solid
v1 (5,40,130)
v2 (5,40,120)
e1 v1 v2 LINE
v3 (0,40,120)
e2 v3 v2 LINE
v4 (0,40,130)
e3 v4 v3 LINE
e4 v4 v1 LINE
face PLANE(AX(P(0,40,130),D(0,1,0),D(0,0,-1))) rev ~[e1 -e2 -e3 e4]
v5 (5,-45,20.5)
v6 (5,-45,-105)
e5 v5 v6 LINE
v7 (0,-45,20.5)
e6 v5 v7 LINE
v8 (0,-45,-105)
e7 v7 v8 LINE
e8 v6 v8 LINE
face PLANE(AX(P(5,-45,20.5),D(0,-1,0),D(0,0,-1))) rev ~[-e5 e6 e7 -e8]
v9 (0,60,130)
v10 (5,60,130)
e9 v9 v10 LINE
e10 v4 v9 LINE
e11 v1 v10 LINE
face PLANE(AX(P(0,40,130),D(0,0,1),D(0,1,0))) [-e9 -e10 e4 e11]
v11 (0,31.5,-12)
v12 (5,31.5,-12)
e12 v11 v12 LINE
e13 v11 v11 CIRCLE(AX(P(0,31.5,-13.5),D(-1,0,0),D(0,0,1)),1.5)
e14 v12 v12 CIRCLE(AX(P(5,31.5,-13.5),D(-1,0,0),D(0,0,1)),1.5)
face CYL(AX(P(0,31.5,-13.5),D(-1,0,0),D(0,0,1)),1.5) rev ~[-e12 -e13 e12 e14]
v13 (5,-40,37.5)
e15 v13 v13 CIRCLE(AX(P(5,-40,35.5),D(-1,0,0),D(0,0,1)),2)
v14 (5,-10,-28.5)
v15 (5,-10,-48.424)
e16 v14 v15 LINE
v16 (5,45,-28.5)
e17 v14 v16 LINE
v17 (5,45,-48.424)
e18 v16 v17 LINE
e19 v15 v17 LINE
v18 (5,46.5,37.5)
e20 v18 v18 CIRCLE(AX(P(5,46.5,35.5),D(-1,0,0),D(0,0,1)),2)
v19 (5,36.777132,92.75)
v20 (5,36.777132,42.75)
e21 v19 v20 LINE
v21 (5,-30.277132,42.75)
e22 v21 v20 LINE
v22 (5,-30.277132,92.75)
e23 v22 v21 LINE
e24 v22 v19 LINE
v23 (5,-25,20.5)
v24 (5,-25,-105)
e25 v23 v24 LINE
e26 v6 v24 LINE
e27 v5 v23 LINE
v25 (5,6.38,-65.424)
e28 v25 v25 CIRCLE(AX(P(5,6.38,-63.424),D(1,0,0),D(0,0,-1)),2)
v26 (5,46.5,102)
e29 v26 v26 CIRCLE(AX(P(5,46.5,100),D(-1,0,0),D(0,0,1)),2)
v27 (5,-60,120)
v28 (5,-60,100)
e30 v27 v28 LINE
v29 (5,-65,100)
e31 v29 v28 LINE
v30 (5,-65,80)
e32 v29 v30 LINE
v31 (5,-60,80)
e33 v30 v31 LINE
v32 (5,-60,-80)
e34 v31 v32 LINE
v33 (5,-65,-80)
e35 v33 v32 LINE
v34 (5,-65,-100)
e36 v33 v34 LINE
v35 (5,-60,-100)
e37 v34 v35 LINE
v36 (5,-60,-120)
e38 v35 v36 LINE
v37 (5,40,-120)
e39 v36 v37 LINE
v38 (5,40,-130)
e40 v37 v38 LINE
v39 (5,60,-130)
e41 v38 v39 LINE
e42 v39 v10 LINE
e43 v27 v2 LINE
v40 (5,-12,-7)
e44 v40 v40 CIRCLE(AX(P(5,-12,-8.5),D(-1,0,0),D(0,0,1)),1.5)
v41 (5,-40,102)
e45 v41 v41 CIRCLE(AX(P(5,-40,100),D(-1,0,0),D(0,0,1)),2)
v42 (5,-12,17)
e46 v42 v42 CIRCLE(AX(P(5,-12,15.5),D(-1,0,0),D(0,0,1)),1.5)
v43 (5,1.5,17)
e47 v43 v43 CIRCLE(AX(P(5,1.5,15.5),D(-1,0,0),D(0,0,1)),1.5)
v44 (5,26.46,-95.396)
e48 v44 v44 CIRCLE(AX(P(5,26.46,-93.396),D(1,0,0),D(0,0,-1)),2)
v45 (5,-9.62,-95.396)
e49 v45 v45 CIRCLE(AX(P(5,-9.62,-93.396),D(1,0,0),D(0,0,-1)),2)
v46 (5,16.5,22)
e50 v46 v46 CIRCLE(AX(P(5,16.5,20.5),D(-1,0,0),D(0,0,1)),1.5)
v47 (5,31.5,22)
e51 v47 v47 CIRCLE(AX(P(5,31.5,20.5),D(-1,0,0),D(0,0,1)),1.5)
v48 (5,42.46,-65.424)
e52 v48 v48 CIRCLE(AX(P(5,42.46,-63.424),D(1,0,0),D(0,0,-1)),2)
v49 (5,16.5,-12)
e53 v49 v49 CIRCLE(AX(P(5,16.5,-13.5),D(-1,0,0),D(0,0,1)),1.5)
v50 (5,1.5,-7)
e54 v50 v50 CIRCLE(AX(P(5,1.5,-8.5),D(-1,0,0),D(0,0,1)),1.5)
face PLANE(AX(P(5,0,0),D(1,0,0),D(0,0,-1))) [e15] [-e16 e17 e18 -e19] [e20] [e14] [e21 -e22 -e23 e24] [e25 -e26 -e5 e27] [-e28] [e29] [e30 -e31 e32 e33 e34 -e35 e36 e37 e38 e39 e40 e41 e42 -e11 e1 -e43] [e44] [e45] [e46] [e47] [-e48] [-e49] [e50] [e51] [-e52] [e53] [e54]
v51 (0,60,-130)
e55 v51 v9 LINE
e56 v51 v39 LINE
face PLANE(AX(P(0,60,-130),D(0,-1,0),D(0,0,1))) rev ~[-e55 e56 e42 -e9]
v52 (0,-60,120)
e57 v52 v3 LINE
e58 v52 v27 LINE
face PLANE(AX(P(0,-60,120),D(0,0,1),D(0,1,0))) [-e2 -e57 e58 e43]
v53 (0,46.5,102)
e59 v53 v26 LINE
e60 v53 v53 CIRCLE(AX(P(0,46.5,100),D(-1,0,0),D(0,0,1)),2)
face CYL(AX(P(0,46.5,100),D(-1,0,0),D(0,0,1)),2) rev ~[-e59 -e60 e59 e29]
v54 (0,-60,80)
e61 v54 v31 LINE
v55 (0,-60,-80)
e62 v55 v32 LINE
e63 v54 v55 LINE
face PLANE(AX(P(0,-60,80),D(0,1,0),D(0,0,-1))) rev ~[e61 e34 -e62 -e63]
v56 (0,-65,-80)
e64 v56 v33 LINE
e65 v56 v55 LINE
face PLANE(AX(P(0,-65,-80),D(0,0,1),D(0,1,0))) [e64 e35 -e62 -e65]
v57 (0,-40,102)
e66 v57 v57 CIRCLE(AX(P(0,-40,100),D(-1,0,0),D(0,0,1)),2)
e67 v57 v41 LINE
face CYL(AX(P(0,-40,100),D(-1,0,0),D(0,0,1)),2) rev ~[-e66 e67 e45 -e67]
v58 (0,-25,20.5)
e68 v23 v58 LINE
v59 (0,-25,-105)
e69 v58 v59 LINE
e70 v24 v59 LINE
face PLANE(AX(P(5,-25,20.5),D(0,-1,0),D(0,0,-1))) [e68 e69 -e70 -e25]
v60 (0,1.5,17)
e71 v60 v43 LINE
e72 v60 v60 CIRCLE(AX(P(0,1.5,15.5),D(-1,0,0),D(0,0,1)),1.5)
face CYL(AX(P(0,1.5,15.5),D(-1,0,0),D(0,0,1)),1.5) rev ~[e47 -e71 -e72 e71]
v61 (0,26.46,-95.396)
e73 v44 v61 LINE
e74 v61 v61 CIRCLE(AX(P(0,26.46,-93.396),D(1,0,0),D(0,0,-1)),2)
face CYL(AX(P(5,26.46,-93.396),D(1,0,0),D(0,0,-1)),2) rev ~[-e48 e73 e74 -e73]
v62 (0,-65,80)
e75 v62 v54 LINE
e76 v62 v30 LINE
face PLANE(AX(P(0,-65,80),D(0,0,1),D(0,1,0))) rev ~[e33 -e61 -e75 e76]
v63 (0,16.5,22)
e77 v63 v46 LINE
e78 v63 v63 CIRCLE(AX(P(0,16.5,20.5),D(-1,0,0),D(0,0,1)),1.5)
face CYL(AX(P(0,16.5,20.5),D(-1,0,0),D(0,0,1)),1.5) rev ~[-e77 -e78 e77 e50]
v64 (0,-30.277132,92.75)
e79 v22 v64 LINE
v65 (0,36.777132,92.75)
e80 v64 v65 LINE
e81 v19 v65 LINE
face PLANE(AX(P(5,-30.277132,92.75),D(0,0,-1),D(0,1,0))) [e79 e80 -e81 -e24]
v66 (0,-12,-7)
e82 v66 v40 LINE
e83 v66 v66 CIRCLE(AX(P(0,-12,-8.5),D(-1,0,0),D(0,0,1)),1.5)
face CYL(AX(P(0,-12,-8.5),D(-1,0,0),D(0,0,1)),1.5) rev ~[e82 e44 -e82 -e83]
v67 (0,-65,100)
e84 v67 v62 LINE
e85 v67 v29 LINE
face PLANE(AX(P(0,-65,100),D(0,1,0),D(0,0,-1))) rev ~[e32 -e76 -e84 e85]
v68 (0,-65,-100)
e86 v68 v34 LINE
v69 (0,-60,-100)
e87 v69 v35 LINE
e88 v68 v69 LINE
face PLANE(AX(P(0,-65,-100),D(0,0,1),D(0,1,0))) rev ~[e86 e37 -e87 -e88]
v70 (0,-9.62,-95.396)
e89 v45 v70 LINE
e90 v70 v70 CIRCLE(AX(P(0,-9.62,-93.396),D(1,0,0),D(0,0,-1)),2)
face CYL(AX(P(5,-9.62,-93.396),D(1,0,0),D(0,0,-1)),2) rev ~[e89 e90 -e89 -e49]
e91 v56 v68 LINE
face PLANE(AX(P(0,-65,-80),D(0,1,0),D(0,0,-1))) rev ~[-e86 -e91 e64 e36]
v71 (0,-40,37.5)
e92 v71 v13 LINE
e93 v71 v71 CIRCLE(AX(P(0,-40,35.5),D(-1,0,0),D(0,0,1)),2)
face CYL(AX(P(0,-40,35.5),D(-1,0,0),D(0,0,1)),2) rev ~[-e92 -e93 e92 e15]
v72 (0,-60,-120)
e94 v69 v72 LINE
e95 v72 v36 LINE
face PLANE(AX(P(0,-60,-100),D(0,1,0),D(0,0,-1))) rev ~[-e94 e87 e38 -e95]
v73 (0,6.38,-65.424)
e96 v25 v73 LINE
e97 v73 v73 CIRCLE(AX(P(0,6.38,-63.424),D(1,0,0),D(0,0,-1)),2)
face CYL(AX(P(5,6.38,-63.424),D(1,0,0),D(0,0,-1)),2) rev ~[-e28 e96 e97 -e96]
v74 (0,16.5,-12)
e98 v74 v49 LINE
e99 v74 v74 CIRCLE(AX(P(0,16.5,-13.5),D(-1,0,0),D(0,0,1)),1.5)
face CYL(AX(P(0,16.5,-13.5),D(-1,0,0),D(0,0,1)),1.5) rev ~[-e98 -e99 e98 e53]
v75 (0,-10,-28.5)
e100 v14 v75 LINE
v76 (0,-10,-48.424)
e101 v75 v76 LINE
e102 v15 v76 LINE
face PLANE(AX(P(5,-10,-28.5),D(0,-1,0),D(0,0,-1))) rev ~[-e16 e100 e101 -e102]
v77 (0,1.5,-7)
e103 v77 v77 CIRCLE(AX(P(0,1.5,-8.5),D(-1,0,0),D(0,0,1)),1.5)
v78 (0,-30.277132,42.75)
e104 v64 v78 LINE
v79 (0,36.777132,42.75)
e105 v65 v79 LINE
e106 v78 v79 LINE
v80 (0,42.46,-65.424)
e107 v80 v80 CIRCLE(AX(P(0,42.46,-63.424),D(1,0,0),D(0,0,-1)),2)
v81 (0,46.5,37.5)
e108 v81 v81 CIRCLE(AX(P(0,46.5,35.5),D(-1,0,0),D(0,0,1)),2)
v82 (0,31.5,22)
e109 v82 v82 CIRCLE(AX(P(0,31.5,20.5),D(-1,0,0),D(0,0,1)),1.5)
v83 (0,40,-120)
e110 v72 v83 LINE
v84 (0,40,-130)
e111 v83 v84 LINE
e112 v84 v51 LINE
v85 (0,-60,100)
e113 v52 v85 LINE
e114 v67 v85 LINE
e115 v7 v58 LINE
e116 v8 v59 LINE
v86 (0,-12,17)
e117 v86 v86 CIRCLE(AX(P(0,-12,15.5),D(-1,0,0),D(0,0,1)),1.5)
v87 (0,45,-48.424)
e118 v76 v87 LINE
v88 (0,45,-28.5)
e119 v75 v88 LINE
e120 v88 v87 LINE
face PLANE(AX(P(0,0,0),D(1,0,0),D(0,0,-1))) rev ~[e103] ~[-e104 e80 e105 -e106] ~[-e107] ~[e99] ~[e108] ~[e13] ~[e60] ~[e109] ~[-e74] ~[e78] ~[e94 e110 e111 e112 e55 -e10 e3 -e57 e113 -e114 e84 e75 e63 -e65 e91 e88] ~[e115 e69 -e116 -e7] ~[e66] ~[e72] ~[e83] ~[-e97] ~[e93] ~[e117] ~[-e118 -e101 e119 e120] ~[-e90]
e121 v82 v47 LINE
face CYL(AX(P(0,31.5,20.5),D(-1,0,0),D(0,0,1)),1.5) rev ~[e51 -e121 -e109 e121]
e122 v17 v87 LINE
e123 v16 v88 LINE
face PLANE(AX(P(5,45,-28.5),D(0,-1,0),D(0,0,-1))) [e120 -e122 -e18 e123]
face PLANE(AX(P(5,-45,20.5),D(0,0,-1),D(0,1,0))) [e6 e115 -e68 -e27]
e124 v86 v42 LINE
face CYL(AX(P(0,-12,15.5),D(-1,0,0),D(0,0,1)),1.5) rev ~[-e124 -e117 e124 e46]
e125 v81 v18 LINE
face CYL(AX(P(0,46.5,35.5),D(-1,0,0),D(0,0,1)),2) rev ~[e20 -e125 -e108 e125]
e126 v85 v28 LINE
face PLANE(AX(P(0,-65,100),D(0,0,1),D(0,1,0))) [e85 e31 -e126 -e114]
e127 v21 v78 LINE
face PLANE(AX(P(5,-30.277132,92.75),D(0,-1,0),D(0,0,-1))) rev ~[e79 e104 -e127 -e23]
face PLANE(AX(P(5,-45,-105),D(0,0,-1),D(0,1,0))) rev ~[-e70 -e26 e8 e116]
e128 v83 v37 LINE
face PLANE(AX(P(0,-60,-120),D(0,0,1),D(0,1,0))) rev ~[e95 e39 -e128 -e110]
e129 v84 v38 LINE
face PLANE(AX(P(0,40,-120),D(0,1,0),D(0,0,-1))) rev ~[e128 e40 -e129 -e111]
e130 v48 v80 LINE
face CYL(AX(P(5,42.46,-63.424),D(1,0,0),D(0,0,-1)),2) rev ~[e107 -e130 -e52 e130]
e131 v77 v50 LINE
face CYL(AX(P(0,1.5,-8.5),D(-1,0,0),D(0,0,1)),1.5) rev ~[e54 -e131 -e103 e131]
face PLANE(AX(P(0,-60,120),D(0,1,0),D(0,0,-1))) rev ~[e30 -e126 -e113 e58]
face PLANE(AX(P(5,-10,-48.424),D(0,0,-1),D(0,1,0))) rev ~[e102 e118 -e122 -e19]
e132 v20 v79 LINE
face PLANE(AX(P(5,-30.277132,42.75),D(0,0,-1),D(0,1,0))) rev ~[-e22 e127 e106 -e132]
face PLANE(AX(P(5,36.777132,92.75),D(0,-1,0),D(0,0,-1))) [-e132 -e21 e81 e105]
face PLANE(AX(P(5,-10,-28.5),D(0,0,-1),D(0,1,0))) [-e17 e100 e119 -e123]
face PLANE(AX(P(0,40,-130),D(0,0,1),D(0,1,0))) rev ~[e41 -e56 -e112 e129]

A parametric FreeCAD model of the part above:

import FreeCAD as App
import Part
import Sketcher

V = App.Vector
Q = App.Units.Quantity


def add_polygon(sketch, points):
    """Adds a closed chain of lines whose ends are joined by coincident constraints."""
    first, n = sketch.GeometryCount, len(points)
    for a, b in zip(points, points[1:] + points[:1]):
        sketch.addGeometry(Part.LineSegment(App.Vector(*a, 0), App.Vector(*b, 0)), False)
    for i in range(n):
        sketch.addConstraint(Sketcher.Constraint("Coincident", first + i, 2, first + (i + 1) % n, 1))

doc = App.newDocument("Part")
body = doc.addObject("PartDesign::Body", "Body")

# Sketch on YZ plane
sketch1 = doc.addObject("Sketcher::SketchObject", "Sketch")
body.addObject(sketch1)
sketch1.AttachmentSupport = (doc.YZ_Plane, [""])
sketch1.MapMode = "FlatFace"
add_polygon(sketch1, [(40, 120), (-60, 120), (-60, 100), (-65, 100), (-65, 80), (-60, 80), (-60, -80), (-65, -80), (-65, -100), (-60, -100), (-60, -120), (40, -120), (40, -130), (60, -130), (60, 130), (40, 130)])  # lines 0-15
sketch1.addConstraint([
    Sketcher.Constraint("Horizontal", 0),
    Sketcher.Constraint("Vertical", 1),
    Sketcher.Constraint("Horizontal", 2),
    Sketcher.Constraint("Vertical", 3),
    Sketcher.Constraint("Horizontal", 4),
    Sketcher.Constraint("Vertical", 5),
    Sketcher.Constraint("Horizontal", 6),
    Sketcher.Constraint("Vertical", 7),
    Sketcher.Constraint("Horizontal", 8),
    Sketcher.Constraint("Vertical", 9),
    Sketcher.Constraint("Horizontal", 10),
    Sketcher.Constraint("Vertical", 11),
    Sketcher.Constraint("Horizontal", 12),
    Sketcher.Constraint("Vertical", 13),
    Sketcher.Constraint("Horizontal", 14),
    Sketcher.Constraint("Vertical", 15),
    Sketcher.Constraint("Symmetric", 3, 2, 6, 2, -1),
    Sketcher.Constraint("Symmetric", 1, 2, 8, 2, -1),
    Sketcher.Constraint("Symmetric", 11, 2, 14, 2, -1),
    Sketcher.Constraint("Vertical", 1, 2, 4, 2),
    Sketcher.Constraint("Equal", 14, 1),
    Sketcher.Constraint("Equal", 1, 3),
    Sketcher.Constraint("Equal", 7, 9),
    Sketcher.Constraint("DistanceX", 0, 2, 0, 1, Q("100 mm")),
    Sketcher.Constraint("DistanceX", 2, 2, 2, 1, Q("5 mm")),
    Sketcher.Constraint("DistanceX", 12, 1, 12, 2, Q("20 mm")),
    Sketcher.Constraint("DistanceY", 5, 2, 5, 1, Q("160 mm")),
    Sketcher.Constraint("DistanceY", 11, 2, 11, 1, Q("10 mm")),
    Sketcher.Constraint("DistanceX", 0, 2, -1, 1, Q("60 mm")),
])
pad1 = doc.addObject("PartDesign::Pad", "Pad")
body.addObject(pad1)
pad1.Profile = sketch1
pad1.Length = 5

# Sketch on YZ plane
sketch2 = doc.addObject("Sketcher::SketchObject", "Sketch001")
body.addObject(sketch2)
sketch2.AttachmentSupport = (doc.YZ_Plane, [""])
sketch2.MapMode = "FlatFace"
sketch2.addGeometry([
    Part.Circle(V(46.5, 35.5, 0), V(0, 0, 1), 2),  # 0
    Part.Circle(V(46.5, 100, 0), V(0, 0, 1), 2),  # 1
    Part.Circle(V(-40, 100, 0), V(0, 0, 1), 2),  # 2
    Part.Circle(V(-40, 35.5, 0), V(0, 0, 1), 2),  # 3
    Part.Circle(V(31.5, 20.5, 0), V(0, 0, 1), 1.5),  # 4
    Part.Circle(V(31.5, -13.5, 0), V(0, 0, 1), 1.5),  # 5
    Part.Circle(V(16.5, -13.5, 0), V(0, 0, 1), 1.5),  # 6
    Part.Circle(V(16.5, 20.5, 0), V(0, 0, 1), 1.5),  # 7
    Part.Circle(V(1.5, 15.5, 0), V(0, 0, 1), 1.5),  # 8
    Part.Circle(V(-12, 15.5, 0), V(0, 0, 1), 1.5),  # 9
    Part.Circle(V(1.5, -8.5, 0), V(0, 0, 1), 1.5),  # 10
    Part.Circle(V(-12, -8.5, 0), V(0, 0, 1), 1.5),  # 11
], False)
sketch2.addConstraint([
    Sketcher.Constraint("Equal", 0, 1),
    Sketcher.Constraint("Equal", 1, 2),
    Sketcher.Constraint("Equal", 2, 3),
    Sketcher.Constraint("Equal", 4, 5),
    Sketcher.Constraint("Equal", 5, 6),
    Sketcher.Constraint("Equal", 6, 7),
    Sketcher.Constraint("Equal", 7, 8),
    Sketcher.Constraint("Equal", 8, 9),
    Sketcher.Constraint("Equal", 9, 10),
    Sketcher.Constraint("Equal", 10, 11),
    Sketcher.Constraint("Horizontal", 1, 3, 2, 3),
    Sketcher.Constraint("Horizontal", 0, 3, 3, 3),
    Sketcher.Constraint("Horizontal", 5, 3, 6, 3),
    Sketcher.Constraint("Horizontal", 4, 3, 7, 3),
    Sketcher.Constraint("Horizontal", 8, 3, 9, 3),
    Sketcher.Constraint("Horizontal", 10, 3, 11, 3),
    Sketcher.Constraint("Vertical", 0, 3, 1, 3),
    Sketcher.Constraint("Vertical", 2, 3, 3, 3),
    Sketcher.Constraint("Vertical", 4, 3, 5, 3),
    Sketcher.Constraint("Vertical", 6, 3, 7, 3),
    Sketcher.Constraint("Vertical", 8, 3, 10, 3),
    Sketcher.Constraint("Vertical", 9, 3, 11, 3),
    Sketcher.Constraint("Diameter", 0, Q("4 mm")),
    Sketcher.Constraint("Diameter", 4, Q("3 mm")),
    Sketcher.Constraint("DistanceY", -1, 1, 1, 3, Q("100 mm")),
    Sketcher.Constraint("DistanceX", 2, 3, -1, 1, Q("40 mm")),
    Sketcher.Constraint("DistanceX", 9, 3, -1, 1, Q("12 mm")),
    Sketcher.Constraint("DistanceX", 4, 3, 0, 3, Q("15 mm")),
    Sketcher.Constraint("DistanceY", 4, 3, 0, 3, Q("15 mm")),
    Sketcher.Constraint("DistanceY", 5, 3, 4, 3, Q("34 mm")),
    Sketcher.Constraint("DistanceX", 6, 3, 5, 3, Q("15 mm")),
    Sketcher.Constraint("DistanceX", 8, 3, 7, 3, Q("15 mm")),
    Sketcher.Constraint("DistanceY", 8, 3, 7, 3, Q("5 mm")),
    Sketcher.Constraint("DistanceY", 6, 3, 10, 3, Q("5 mm")),
    Sketcher.Constraint("DistanceX", -1, 1, 0, 3, Q("46.5 mm")),
    Sketcher.Constraint("DistanceY", -1, 1, 0, 3, Q("35.5 mm")),
])
pocket1 = doc.addObject("PartDesign::Pocket", "Pocket")
body.addObject(pocket1)
pocket1.Profile = sketch2
pocket1.Type = "ThroughAll"
pocket1.Reversed = True

# Sketch on YZ plane
sketch3 = doc.addObject("Sketcher::SketchObject", "Sketch002")
body.addObject(sketch3)
sketch3.AttachmentSupport = (doc.YZ_Plane, [""])
sketch3.MapMode = "FlatFace"
sketch3.AttachmentOffset = App.Placement(V(0, 0, 5), App.Rotation())
sketch3.addGeometry([
    Part.Circle(V(42.5, -63.4, 0), V(0, 0, 1), 2),
    Part.Circle(V(26.5, -93.4, 0), V(0, 0, 1), 2),
    Part.Circle(V(6.4, -63.4, 0), V(0, 0, 1), 2),
    Part.Circle(V(-9.6, -93.4, 0), V(0, 0, 1), 2),
], False)
sketch3.addConstraint([
    Sketcher.Constraint("Equal", 0, 1),
    Sketcher.Constraint("Equal", 1, 2),
    Sketcher.Constraint("Equal", 2, 3),
    Sketcher.Constraint("Horizontal", 0, 3, 2, 3),
    Sketcher.Constraint("Horizontal", 1, 3, 3, 3),
    Sketcher.Constraint("Diameter", 0, Q("4 mm")),
    Sketcher.Constraint("DistanceX", 1, 3, 0, 3, Q("16 mm")),
    Sketcher.Constraint("DistanceX", 3, 3, 2, 3, Q("16 mm")),
    Sketcher.Constraint("DistanceX", -1, 1, 0, 3, Q("42.46 mm")),
    Sketcher.Constraint("DistanceX", -1, 1, 2, 3, Q("6.38 mm")),
    Sketcher.Constraint("DistanceY", 0, 3, -1, 1, Q("63.424 mm")),
    Sketcher.Constraint("DistanceY", 1, 3, -1, 1, Q("93.396 mm")),
])
pocket2 = doc.addObject("PartDesign::Pocket", "Pocket001")
body.addObject(pocket2)
pocket2.Profile = sketch3
pocket2.Type = "ThroughAll"

# Sketch on YZ plane
sketch4 = doc.addObject("Sketcher::SketchObject", "Sketch003")
body.addObject(sketch4)
sketch4.AttachmentSupport = (doc.YZ_Plane, [""])
sketch4.MapMode = "FlatFace"
sketch4.AttachmentOffset = App.Placement(V(0, 0, 5), App.Rotation())
add_polygon(sketch4, [(37, 93), (-30, 93), (-30, 43), (37, 43)])  # lines 0-3
add_polygon(sketch4, [(-25, 20), (-45, 20), (-45, -105), (-25, -105)])  # lines 4-7
add_polygon(sketch4, [(45, -28), (-10, -28), (-10, -48), (45, -48)])  # lines 8-11
sketch4.addConstraint([
    Sketcher.Constraint("Horizontal", 0),
    Sketcher.Constraint("Vertical", 1),
    Sketcher.Constraint("Horizontal", 2),
    Sketcher.Constraint("Vertical", 3),
    Sketcher.Constraint("Horizontal", 4),
    Sketcher.Constraint("Vertical", 5),
    Sketcher.Constraint("Horizontal", 6),
    Sketcher.Constraint("Vertical", 7),
    Sketcher.Constraint("Horizontal", 8),
    Sketcher.Constraint("Vertical", 9),
    Sketcher.Constraint("Horizontal", 10),
    Sketcher.Constraint("Vertical", 11),
    Sketcher.Constraint("DistanceX", 4, 2, 4, 1, Q("20 mm")),
    Sketcher.Constraint("DistanceX", 8, 2, 8, 1, Q("55 mm")),
    Sketcher.Constraint("DistanceY", 1, 2, 1, 1, Q("50 mm")),
    Sketcher.Constraint("DistanceY", 5, 2, 5, 1, Q("125.5 mm")),
    Sketcher.Constraint("DistanceX", 4, 2, -1, 1, Q("45 mm")),
    Sketcher.Constraint("DistanceY", 5, 2, -1, 1, Q("105 mm")),
    Sketcher.Constraint("DistanceX", 8, 2, -1, 1, Q("10 mm")),
    Sketcher.Constraint("DistanceY", 8, 2, 7, 2, Q("49 mm")),
    Sketcher.Constraint("DistanceY", 9, 2, 9, 1, Q("19.924 mm")),
    Sketcher.Constraint("DistanceY", -1, 1, 0, 2, Q("92.75 mm")),
    Sketcher.Constraint("DistanceX", 0, 2, 0, 1, Q("67.054264 mm")),
    Sketcher.Constraint("DistanceX", 0, 2, -1, 1, Q("30.277132 mm")),
])
pocket3 = doc.addObject("PartDesign::Pocket", "Pocket002")
body.addObject(pocket3)
pocket3.Profile = sketch4
pocket3.Type = "ThroughAll"

doc.recompute()
